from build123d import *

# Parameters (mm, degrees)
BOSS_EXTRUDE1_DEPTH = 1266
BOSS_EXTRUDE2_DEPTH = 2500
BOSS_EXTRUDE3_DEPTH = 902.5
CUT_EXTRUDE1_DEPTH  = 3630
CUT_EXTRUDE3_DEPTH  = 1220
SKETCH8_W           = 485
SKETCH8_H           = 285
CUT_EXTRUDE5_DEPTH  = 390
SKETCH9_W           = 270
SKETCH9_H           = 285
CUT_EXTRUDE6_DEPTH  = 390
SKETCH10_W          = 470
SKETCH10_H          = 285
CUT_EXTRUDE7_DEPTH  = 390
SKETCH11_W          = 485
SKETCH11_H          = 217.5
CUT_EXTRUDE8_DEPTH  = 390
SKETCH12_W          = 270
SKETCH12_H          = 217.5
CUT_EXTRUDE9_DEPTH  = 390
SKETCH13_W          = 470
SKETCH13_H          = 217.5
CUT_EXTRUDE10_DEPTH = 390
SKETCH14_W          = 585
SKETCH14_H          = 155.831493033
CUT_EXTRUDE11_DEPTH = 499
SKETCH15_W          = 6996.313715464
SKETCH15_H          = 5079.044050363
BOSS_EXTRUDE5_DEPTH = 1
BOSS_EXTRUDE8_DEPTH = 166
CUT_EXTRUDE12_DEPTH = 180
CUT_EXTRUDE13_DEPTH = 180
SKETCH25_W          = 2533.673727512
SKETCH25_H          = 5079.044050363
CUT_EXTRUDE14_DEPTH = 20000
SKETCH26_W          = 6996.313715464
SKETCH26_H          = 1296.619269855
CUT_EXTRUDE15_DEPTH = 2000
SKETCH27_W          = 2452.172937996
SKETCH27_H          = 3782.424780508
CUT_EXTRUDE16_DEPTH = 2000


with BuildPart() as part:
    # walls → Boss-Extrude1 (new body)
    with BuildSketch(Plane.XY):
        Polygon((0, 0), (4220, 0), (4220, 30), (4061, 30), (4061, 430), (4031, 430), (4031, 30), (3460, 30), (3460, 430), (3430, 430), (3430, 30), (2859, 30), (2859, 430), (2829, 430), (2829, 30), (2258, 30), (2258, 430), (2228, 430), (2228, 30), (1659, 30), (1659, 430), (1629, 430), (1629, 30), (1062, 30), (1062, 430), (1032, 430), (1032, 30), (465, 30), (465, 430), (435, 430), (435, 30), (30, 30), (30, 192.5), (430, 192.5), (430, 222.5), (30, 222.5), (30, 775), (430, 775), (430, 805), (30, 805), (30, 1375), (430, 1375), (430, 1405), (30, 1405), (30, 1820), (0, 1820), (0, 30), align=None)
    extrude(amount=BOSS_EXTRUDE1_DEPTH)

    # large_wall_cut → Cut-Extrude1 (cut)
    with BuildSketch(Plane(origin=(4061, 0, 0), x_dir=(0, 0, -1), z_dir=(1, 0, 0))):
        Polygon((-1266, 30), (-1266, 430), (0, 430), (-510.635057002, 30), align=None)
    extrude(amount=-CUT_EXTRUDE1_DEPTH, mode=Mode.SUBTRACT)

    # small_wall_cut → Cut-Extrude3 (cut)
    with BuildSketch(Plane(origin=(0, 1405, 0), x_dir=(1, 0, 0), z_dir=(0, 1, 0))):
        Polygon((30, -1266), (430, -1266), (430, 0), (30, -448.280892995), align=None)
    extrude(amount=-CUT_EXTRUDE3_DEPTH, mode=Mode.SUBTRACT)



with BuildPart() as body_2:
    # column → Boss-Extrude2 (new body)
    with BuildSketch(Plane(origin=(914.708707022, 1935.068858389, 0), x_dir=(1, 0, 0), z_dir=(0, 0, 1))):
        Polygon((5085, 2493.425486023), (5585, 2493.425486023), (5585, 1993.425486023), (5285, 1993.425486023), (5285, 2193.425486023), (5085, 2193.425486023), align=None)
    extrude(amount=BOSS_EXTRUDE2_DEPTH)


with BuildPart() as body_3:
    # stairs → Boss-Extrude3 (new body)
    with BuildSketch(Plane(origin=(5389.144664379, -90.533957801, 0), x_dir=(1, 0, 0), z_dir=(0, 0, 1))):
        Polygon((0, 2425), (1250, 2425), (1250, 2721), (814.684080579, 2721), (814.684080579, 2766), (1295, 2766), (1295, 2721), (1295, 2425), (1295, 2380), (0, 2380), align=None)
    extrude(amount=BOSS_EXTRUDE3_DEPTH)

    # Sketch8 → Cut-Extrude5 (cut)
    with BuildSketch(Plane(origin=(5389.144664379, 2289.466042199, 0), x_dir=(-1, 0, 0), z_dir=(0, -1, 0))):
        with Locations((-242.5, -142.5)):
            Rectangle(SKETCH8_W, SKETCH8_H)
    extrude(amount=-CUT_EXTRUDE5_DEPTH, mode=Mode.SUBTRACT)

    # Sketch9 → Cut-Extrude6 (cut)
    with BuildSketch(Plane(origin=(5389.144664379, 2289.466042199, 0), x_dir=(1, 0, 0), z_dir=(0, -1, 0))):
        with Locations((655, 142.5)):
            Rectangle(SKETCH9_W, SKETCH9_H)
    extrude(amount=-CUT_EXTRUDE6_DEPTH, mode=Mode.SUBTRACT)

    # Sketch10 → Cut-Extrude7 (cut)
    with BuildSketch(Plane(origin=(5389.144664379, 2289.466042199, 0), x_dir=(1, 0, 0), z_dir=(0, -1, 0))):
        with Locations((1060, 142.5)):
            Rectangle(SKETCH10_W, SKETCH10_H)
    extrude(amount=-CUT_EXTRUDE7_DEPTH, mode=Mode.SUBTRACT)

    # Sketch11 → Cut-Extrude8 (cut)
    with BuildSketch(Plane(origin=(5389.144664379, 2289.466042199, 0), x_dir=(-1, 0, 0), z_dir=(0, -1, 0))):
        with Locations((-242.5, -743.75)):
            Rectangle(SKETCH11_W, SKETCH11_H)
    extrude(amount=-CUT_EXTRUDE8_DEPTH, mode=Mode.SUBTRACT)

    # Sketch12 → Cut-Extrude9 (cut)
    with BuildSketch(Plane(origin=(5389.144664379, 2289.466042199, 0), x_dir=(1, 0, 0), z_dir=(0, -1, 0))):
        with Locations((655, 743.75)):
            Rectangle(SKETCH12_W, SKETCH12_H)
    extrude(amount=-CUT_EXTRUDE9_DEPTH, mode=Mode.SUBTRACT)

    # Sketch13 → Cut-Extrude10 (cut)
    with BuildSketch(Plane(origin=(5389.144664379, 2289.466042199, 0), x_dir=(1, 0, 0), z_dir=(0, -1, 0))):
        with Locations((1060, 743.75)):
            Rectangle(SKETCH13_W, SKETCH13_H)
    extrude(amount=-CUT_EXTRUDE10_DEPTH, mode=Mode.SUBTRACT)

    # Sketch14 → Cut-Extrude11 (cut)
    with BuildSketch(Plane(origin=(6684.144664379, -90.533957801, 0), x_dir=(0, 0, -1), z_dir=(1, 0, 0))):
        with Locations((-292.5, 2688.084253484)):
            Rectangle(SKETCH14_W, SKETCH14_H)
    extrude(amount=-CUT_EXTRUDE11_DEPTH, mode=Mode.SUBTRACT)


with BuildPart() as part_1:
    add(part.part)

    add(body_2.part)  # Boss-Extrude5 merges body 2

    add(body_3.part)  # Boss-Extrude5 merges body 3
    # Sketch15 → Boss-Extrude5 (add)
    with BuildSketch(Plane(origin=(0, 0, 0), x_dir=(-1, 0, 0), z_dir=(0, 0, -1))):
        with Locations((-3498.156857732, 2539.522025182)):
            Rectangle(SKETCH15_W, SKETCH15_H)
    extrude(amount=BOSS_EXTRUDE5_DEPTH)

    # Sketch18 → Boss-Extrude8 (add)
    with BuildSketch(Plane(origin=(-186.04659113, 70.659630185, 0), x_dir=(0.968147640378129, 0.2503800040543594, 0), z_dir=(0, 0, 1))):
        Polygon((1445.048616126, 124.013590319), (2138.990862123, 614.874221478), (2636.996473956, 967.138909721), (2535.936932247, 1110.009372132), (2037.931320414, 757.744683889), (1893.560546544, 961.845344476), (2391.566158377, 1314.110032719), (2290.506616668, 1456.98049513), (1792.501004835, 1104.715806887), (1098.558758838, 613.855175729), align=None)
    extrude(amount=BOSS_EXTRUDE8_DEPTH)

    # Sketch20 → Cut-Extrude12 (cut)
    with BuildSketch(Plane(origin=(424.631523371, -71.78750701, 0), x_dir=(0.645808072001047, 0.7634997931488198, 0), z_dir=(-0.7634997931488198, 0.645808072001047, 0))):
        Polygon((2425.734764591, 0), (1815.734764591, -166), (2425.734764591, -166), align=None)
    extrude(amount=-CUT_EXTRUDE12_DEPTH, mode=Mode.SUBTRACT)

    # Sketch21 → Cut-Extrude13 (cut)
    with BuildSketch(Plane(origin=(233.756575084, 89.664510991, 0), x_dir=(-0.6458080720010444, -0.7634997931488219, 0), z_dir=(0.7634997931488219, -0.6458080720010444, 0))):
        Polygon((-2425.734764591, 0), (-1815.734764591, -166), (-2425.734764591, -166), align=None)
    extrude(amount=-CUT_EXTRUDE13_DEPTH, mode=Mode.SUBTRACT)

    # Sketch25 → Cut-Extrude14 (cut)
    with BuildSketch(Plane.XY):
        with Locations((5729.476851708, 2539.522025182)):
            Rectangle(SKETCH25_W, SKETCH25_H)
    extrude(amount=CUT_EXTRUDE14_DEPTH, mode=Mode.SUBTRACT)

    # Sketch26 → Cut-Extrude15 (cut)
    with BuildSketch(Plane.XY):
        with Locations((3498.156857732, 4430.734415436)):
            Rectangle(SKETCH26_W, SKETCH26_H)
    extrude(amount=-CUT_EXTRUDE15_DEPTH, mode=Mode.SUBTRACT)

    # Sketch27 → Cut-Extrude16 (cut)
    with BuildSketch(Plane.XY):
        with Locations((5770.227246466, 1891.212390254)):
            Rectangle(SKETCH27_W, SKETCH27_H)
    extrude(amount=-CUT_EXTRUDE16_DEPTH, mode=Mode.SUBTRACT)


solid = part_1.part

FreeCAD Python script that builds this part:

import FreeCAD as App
import Part
import Sketcher
from FreeCAD import Vector

doc = App.newDocument("Part")
params = doc.addObject("Spreadsheet::Sheet", "Params")
for row, (alias, value) in enumerate([
    ("sketch1_width", "4220 mm"),
    ("sketch1_width2", "159 mm"),
    ("sketch1_width3", "30 mm"),
    ("sketch1_width4", "571 mm"),
    ("sketch1_width5", "569 mm"),
    ("pad1_length", "1266 mm"),
    ("sketch2_width", "400 mm"),
    ("sketch2_height", "1266 mm"),
    ("pocket1_length", "3630 mm"),
    ("sketch3_width", "400 mm"),
    ("sketch3_height", "1266 mm"),
    ("pocket2_length", "1220 mm"),
    ("sketch4_width", "500 mm"),
    ("sketch4_width2", "200 mm"),
    ("pad2_length", "2500 mm"),
    ("sketch5_width", "1250 mm"),
    ("sketch5_width2", "1295 mm"),
    ("sketch5_height", "45 mm"),
    ("sketch5_height2", "386 mm"),
    ("pad3_length", "902.5 mm"),
    ("sketch6_width", "485 mm"),
    ("sketch6_height", "285 mm"),
    ("pocket3_length", "390 mm"),
    ("sketch7_width", "270 mm"),
    ("sketch7_height", "285 mm"),
    ("pocket4_length", "390 mm"),
    ("sketch8_width", "470 mm"),
    ("sketch8_height", "285 mm"),
    ("pocket5_length", "390 mm"),
    ("sketch9_width", "485 mm"),
    ("sketch9_height", "217.5 mm"),
    ("pocket6_length", "390 mm"),
    ("sketch10_width", "270 mm"),
    ("sketch10_height", "217.5 mm"),
    ("pocket7_length", "390 mm"),
    ("sketch11_width", "470 mm"),
    ("sketch11_height", "217.5 mm"),
    ("pocket8_length", "390 mm"),
    ("sketch12_height", "585 mm"),
    ("pocket9_length", "499 mm"),
    ("pad4_length", "1 mm"),
    ("sketch14_length", "1459.999999 mm"),
    ("sketch14_length2", "175 mm"),
    ("sketch14_length3", "610 mm"),
    ("sketch14_length4", "250 mm"),
    ("pad5_length", "166 mm"),
    ("sketch15_width", "610 mm"),
    ("sketch15_height", "166 mm"),
    ("pocket10_length", "180 mm"),
    ("sketch16_width", "610 mm"),
    ("sketch16_height", "166 mm"),
    ("pocket11_length", "180 mm"),
    ("pocket12_length", "20000 mm"),
    ("pocket13_length", "2000 mm"),
    ("pocket14_length", "2000 mm"),
], start=1):
    params.set(f"A{row}", alias)
    params.set(f"B{row}", "=" + value)
    params.setAlias(f"B{row}", alias)

body = doc.addObject("PartDesign::Body", "Body")

sketch1 = body.newObject("Sketcher::SketchObject", "Sketch")
sketch1.AttachmentSupport = (doc.getObject("XY_Plane"), [""])
sketch1.MapMode = "FlatFace"
sketch1.addGeometry([
    Part.LineSegment(Vector(0, 0, 0), Vector(4220, 0, 0)),
    Part.LineSegment(Vector(4220, 0, 0), Vector(4220, 30, 0)),
    Part.LineSegment(Vector(4220, 30, 0), Vector(4061, 30, 0)),
    Part.LineSegment(Vector(4061, 30, 0), Vector(4061, 430, 0)),
    Part.LineSegment(Vector(4061, 430, 0), Vector(4031, 430, 0)),
    Part.LineSegment(Vector(4031, 430, 0), Vector(4031, 30, 0)),
    Part.LineSegment(Vector(4031, 30, 0), Vector(3460, 30, 0)),
    Part.LineSegment(Vector(3460, 30, 0), Vector(3460, 430, 0)),
    Part.LineSegment(Vector(3460, 430, 0), Vector(3430, 430, 0)),
    Part.LineSegment(Vector(3430, 430, 0), Vector(3430, 30, 0)),
    Part.LineSegment(Vector(3430, 30, 0), Vector(2859, 30, 0)),
    Part.LineSegment(Vector(2859, 30, 0), Vector(2859, 430, 0)),
    Part.LineSegment(Vector(2859, 430, 0), Vector(2829, 430, 0)),
    Part.LineSegment(Vector(2829, 430, 0), Vector(2829, 30, 0)),
    Part.LineSegment(Vector(2829, 30, 0), Vector(2258, 30, 0)),
    Part.LineSegment(Vector(2258, 30, 0), Vector(2258, 430, 0)),
    Part.LineSegment(Vector(2258, 430, 0), Vector(2228, 430, 0)),
    Part.LineSegment(Vector(2228, 430, 0), Vector(2228, 30, 0)),
    Part.LineSegment(Vector(2228, 30, 0), Vector(1659, 30, 0)),
    Part.LineSegment(Vector(1659, 30, 0), Vector(1659, 430, 0)),
    Part.LineSegment(Vector(1659, 430, 0), Vector(1629, 430, 0)),
    Part.LineSegment(Vector(1629, 430, 0), Vector(1629, 30, 0)),
    Part.LineSegment(Vector(1629, 30, 0), Vector(1062, 30, 0)),
    Part.LineSegment(Vector(1062, 30, 0), Vector(1062, 430, 0)),
    Part.LineSegment(Vector(1062, 430, 0), Vector(1032, 430, 0)),
    Part.LineSegment(Vector(1032, 430, 0), Vector(1032, 30, 0)),
    Part.LineSegment(Vector(1032, 30, 0), Vector(465, 30, 0)),
    Part.LineSegment(Vector(465, 30, 0), Vector(465, 430, 0)),
    Part.LineSegment(Vector(465, 430, 0), Vector(435, 430, 0)),
    Part.LineSegment(Vector(435, 430, 0), Vector(435, 30, 0)),
    Part.LineSegment(Vector(435, 30, 0), Vector(30, 30, 0)),
    Part.LineSegment(Vector(30, 30, 0), Vector(30, 192.5, 0)),
    Part.LineSegment(Vector(30, 192.5, 0), Vector(430, 192.5, 0)),
    Part.LineSegment(Vector(430, 192.5, 0), Vector(430, 222.5, 0)),
    Part.LineSegment(Vector(430, 222.5, 0), Vector(30, 222.5, 0)),
    Part.LineSegment(Vector(30, 222.5, 0), Vector(30, 775, 0)),
    Part.LineSegment(Vector(30, 775, 0), Vector(430, 775, 0)),
    Part.LineSegment(Vector(430, 775, 0), Vector(430, 805, 0)),
    Part.LineSegment(Vector(430, 805, 0), Vector(30, 805, 0)),
    Part.LineSegment(Vector(30, 805, 0), Vector(30, 1375, 0)),
    Part.LineSegment(Vector(30, 1375, 0), Vector(430, 1375, 0)),
    Part.LineSegment(Vector(430, 1375, 0), Vector(430, 1405, 0)),
    Part.LineSegment(Vector(430, 1405, 0), Vector(30, 1405, 0)),
    Part.LineSegment(Vector(30, 1405, 0), Vector(30, 1820, 0)),
    Part.LineSegment(Vector(30, 1820, 0), Vector(0, 1820, 0)),
    Part.LineSegment(Vector(0, 1820, 0), Vector(0, 0, 0)),
], False)
sketch1.addConstraint([
    Sketcher.Constraint("Coincident", 0, 2, 1, 1),
    Sketcher.Constraint("Coincident", 1, 2, 2, 1),
    Sketcher.Constraint("Coincident", 2, 2, 3, 1),
    Sketcher.Constraint("Coincident", 3, 2, 4, 1),
    Sketcher.Constraint("Coincident", 4, 2, 5, 1),
    Sketcher.Constraint("Coincident", 5, 2, 6, 1),
    Sketcher.Constraint("Coincident", 6, 2, 7, 1),
    Sketcher.Constraint("Coincident", 7, 2, 8, 1),
    Sketcher.Constraint("Coincident", 8, 2, 9, 1),
    Sketcher.Constraint("Coincident", 9, 2, 10, 1),
    Sketcher.Constraint("Coincident", 10, 2, 11, 1),
    Sketcher.Constraint("Coincident", 11, 2, 12, 1),
    Sketcher.Constraint("Coincident", 12, 2, 13, 1),
    Sketcher.Constraint("Coincident", 13, 2, 14, 1),
    Sketcher.Constraint("Coincident", 14, 2, 15, 1),
    Sketcher.Constraint("Coincident", 15, 2, 16, 1),
    Sketcher.Constraint("Coincident", 16, 2, 17, 1),
    Sketcher.Constraint("Coincident", 17, 2, 18, 1),
    Sketcher.Constraint("Coincident", 18, 2, 19, 1),
    Sketcher.Constraint("Coincident", 19, 2, 20, 1),
    Sketcher.Constraint("Coincident", 20, 2, 21, 1),
    Sketcher.Constraint("Coincident", 21, 2, 22, 1),
    Sketcher.Constraint("Coincident", 22, 2, 23, 1),
    Sketcher.Constraint("Coincident", 23, 2, 24, 1),
    Sketcher.Constraint("Coincident", 24, 2, 25, 1),
    Sketcher.Constraint("Coincident", 25, 2, 26, 1),
    Sketcher.Constraint("Coincident", 26, 2, 27, 1),
    Sketcher.Constraint("Coincident", 27, 2, 28, 1),
    Sketcher.Constraint("Coincident", 28, 2, 29, 1),
    Sketcher.Constraint("Coincident", 29, 2, 30, 1),
    Sketcher.Constraint("Coincident", 30, 2, 31, 1),
    Sketcher.Constraint("Coincident", 31, 2, 32, 1),
    Sketcher.Constraint("Coincident", 32, 2, 33, 1),
    Sketcher.Constraint("Coincident", 33, 2, 34, 1),
    Sketcher.Constraint("Coincident", 34, 2, 35, 1),
    Sketcher.Constraint("Coincident", 35, 2, 36, 1),
    Sketcher.Constraint("Coincident", 36, 2, 37, 1),
    Sketcher.Constraint("Coincident", 37, 2, 38, 1),
    Sketcher.Constraint("Coincident", 38, 2, 39, 1),
    Sketcher.Constraint("Coincident", 39, 2, 40, 1),
    Sketcher.Constraint("Coincident", 40, 2, 41, 1),
    Sketcher.Constraint("Coincident", 41, 2, 42, 1),
    Sketcher.Constraint("Coincident", 42, 2, 43, 1),
    Sketcher.Constraint("Coincident", 43, 2, 44, 1),
    Sketcher.Constraint("Coincident", 44, 2, 45, 1),
    Sketcher.Constraint("Coincident", 45, 2, 0, 1),
    Sketcher.Constraint("Horizontal", 0),
    Sketcher.Constraint("Vertical", 1),
    Sketcher.Constraint("Horizontal", 2),
    Sketcher.Constraint("Vertical", 3),
    Sketcher.Constraint("Horizontal", 4),
    Sketcher.Constraint("Vertical", 5),
    Sketcher.Constraint("Horizontal", 6),
    Sketcher.Constraint("Vertical", 7),
    Sketcher.Constraint("Horizontal", 8),
    Sketcher.Constraint("Vertical", 9),
    Sketcher.Constraint("Horizontal", 10),
    Sketcher.Constraint("Vertical", 11),
    Sketcher.Constraint("Horizontal", 12),
    Sketcher.Constraint("Vertical", 13),
    Sketcher.Constraint("Horizontal", 14),
    Sketcher.Constraint("Vertical", 15),
    Sketcher.Constraint("Horizontal", 16),
    Sketcher.Constraint("Vertical", 17),
    Sketcher.Constraint("Horizontal", 18),
    Sketcher.Constraint("Vertical", 19),
    Sketcher.Constraint("Horizontal", 20),
    Sketcher.Constraint("Vertical", 21),
    Sketcher.Constraint("Horizontal", 22),
    Sketcher.Constraint("Vertical", 23),
    Sketcher.Constraint("Horizontal", 24),
    Sketcher.Constraint("Vertical", 25),
    Sketcher.Constraint("Horizontal", 26),
    Sketcher.Constraint("Vertical", 27),
    Sketcher.Constraint("Horizontal", 28),
    Sketcher.Constraint("Vertical", 29),
    Sketcher.Constraint("Horizontal", 30),
    Sketcher.Constraint("Vertical", 31),
    Sketcher.Constraint("Horizontal", 32),
    Sketcher.Constraint("Vertical", 33),
    Sketcher.Constraint("Horizontal", 34),
    Sketcher.Constraint("Vertical", 35),
    Sketcher.Constraint("Horizontal", 36),
    Sketcher.Constraint("Vertical", 37),
    Sketcher.Constraint("Horizontal", 38),
    Sketcher.Constraint("Vertical", 39),
    Sketcher.Constraint("Horizontal", 40),
    Sketcher.Constraint("Vertical", 41),
    Sketcher.Constraint("Horizontal", 42),
    Sketcher.Constraint("Vertical", 43),
    Sketcher.Constraint("Horizontal", 44),
    Sketcher.Constraint("Vertical", 45),
    Sketcher.Constraint("Coincident", 45, 2, -1, 1),
    Sketcher.Constraint("Horizontal", 2, 2, 5, 2),
    Sketcher.Constraint("Horizontal", 4, 2, 7, 2),
    Sketcher.Constraint("Horizontal", 6, 2, 9, 2),
    Sketcher.Constraint("Horizontal", 8, 2, 11, 2),
    Sketcher.Constraint("Horizontal", 10, 2, 13, 2),
    Sketcher.Constraint("Horizontal", 12, 2, 15, 2),
    Sketcher.Constraint("Horizontal", 14, 2, 17, 2),
    Sketcher.Constraint("Horizontal", 16, 2, 19, 2),
    Sketcher.Constraint("Horizontal", 18, 2, 21, 2),
    Sketcher.Constraint("Horizontal", 20, 2, 23, 2),
    Sketcher.Constraint("Horizontal", 22, 2, 25, 2),
    Sketcher.Constraint("Horizontal", 24, 2, 27, 2),
    Sketcher.Constraint("Horizontal", 26, 2, 29, 2),
    Sketcher.Constraint("Vertical", 31, 2, 34, 2),
    Sketcher.Constraint("Vertical", 33, 2, 36, 2),
    Sketcher.Constraint("Vertical", 35, 2, 38, 2),
    Sketcher.Constraint("Vertical", 37, 2, 40, 2),
    Sketcher.Constraint("Vertical", 39, 2, 42, 2),
    Sketcher.Constraint("Equal", 4, 8),
    Sketcher.Constraint("Equal", 6, 10),
    Sketcher.Constraint("Equal", 8, 12),
    Sketcher.Constraint("Equal", 10, 14),
    Sketcher.Constraint("Equal", 12, 16),
    Sketcher.Constraint("Equal", 16, 20),
    Sketcher.Constraint("Equal", 20, 24),
    Sketcher.Constraint("Equal", 22, 26),
    Sketcher.Constraint("Equal", 24, 28),
    Sketcher.Constraint("Equal", 28, 44),
    Sketcher.Constraint("Equal", 44, 1),
    Sketcher.Constraint("Equal", 42, 3),
    Sketcher.Constraint("Equal", 1, 33),
    Sketcher.Constraint("Equal", 33, 37),
    Sketcher.Constraint("Equal", 37, 41),
    Sketcher.Constraint("DistanceX", 0, 1, 0, 2, 4220.0),
    Sketcher.Constraint("DistanceX", 2, 2, 2, 1, 159.0),
    Sketcher.Constraint("DistanceX", 4, 2, 4, 1, 30.0),
    Sketcher.Constraint("DistanceX", 6, 2, 6, 1, 571.0),
    Sketcher.Constraint("DistanceX", 18, 2, 18, 1, 569.0),
    Sketcher.Constraint("DistanceX", 22, 2, 22, 1, 567.0),
    Sketcher.Constraint("DistanceX", 32, 1, 32, 2, 400.0),
    Sketcher.Constraint("DistanceY", 39, 1, 39, 2, 570.0),
    Sketcher.Constraint("DistanceY", 43, 1, 43, 2, 415.0),
    Sketcher.Constraint("DistanceY", 45, 2, 45, 1, 1820.0),
    Sketcher.Constraint("DistanceY", 31, 1, 31, 2, 162.5),
])
sketch1.setExpression("Constraints[126]", "Params.sketch1_width")
sketch1.setExpression("Constraints[127]", "Params.sketch1_width2")
sketch1.setExpression("Constraints[128]", "Params.sketch1_width3")
sketch1.setExpression("Constraints[129]", "Params.sketch1_width4")
sketch1.setExpression("Constraints[130]", "Params.sketch1_width5")
pad1 = body.newObject("PartDesign::Pad", "Pad")
pad1.Profile = sketch1
pad1.setExpression("Length", "Params.pad1_length")

sketch2 = body.newObject("Sketcher::SketchObject", "Sketch001")
sketch2.AttachmentSupport = (doc.getObject("YZ_Plane"), [""])
sketch2.MapMode = "FlatFace"
sketch2.AttachmentOffset = App.Placement(Vector(0, 0, 4061), App.Rotation())
sketch2.addGeometry([
    Part.LineSegment(Vector(430, 1266, 0), Vector(30, 1266, 0)),
    Part.LineSegment(Vector(30, 1266, 0), Vector(30, 510.635057, 0)),
    Part.LineSegment(Vector(30, 510.635057, 0), Vector(430, 0, 0)),
    Part.LineSegment(Vector(430, 0, 0), Vector(430, 1266, 0)),
], False)
sketch2.addConstraint([
    Sketcher.Constraint("Coincident", 0, 2, 1, 1),
    Sketcher.Constraint("Coincident", 1, 2, 2, 1),
    Sketcher.Constraint("Coincident", 2, 2, 3, 1),
    Sketcher.Constraint("Coincident", 3, 2, 0, 1),
    Sketcher.Constraint("Horizontal", 0),
    Sketcher.Constraint("Vertical", 1),
    Sketcher.Constraint("Vertical", 3),
    Sketcher.Constraint("PointOnObject", 2, 2, -1),
    Sketcher.Constraint("DistanceX", 0, 2, 0, 1, 400.0),
    Sketcher.Constraint("DistanceY", 3, 1, 3, 2, 1266.0),
    Sketcher.Constraint("DistanceX", -1, 1, 0, 2, 30.0),
    Sketcher.Constraint("DistanceY", 1, 2, 1, 1, 755.364943),
])
sketch2.setExpression("Constraints[8]", "Params.sketch2_width")
sketch2.setExpression("Constraints[9]", "Params.sketch2_height")
pocket1 = body.newObject("PartDesign::Pocket", "Pocket")
pocket1.Profile = sketch2
pocket1.setExpression("Length", "Params.pocket1_length")

sketch3 = body.newObject("Sketcher::SketchObject", "Sketch002")
sketch3.AttachmentSupport = (doc.getObject("XZ_Plane"), [""])
sketch3.MapMode = "FlatFace"
sketch3.AttachmentOffset = App.Placement(Vector(0, 0, -1405), App.Rotation())
sketch3.addGeometry([
    Part.LineSegment(Vector(30, 1266, 0), Vector(430, 1266, 0)),
    Part.LineSegment(Vector(430, 1266, 0), Vector(430, 0, 0)),
    Part.LineSegment(Vector(430, 0, 0), Vector(30, 448.280893, 0)),
    Part.LineSegment(Vector(30, 448.280893, 0), Vector(30, 1266, 0)),
], False)
sketch3.addConstraint([
    Sketcher.Constraint("Coincident", 0, 2, 1, 1),
    Sketcher.Constraint("Coincident", 1, 2, 2, 1),
    Sketcher.Constraint("Coincident", 2, 2, 3, 1),
    Sketcher.Constraint("Coincident", 3, 2, 0, 1),
    Sketcher.Constraint("Horizontal", 0),
    Sketcher.Constraint("Vertical", 1),
    Sketcher.Constraint("Vertical", 3),
    Sketcher.Constraint("PointOnObject", 1, 2, -1),
    Sketcher.Constraint("DistanceX", 0, 1, 0, 2, 400.0),
    Sketcher.Constraint("DistanceY", 1, 2, 1, 1, 1266.0),
    Sketcher.Constraint("DistanceX", -1, 1, 0, 2, 430.0),
    Sketcher.Constraint("DistanceY", 3, 1, 3, 2, 817.719107),
])
sketch3.setExpression("Constraints[8]", "Params.sketch3_width")
sketch3.setExpression("Constraints[9]", "Params.sketch3_height")
pocket2 = body.newObject("PartDesign::Pocket", "Pocket001")
pocket2.Profile = sketch3
pocket2.setExpression("Length", "Params.pocket2_length")
pocket2.Reversed = True
body2 = doc.addObject("PartDesign::Body", "Body001")

sketch4 = body2.newObject("Sketcher::SketchObject", "Sketch003")
sketch4.AttachmentSupport = (doc.getObject("XY_Plane001"), [""])
sketch4.MapMode = "FlatFace"
sketch4.addGeometry([
    Part.LineSegment(Vector(6499.708707, 4428.494344, 0), Vector(5999.708707, 4428.494344, 0)),
    Part.LineSegment(Vector(5999.708707, 4428.494344, 0), Vector(5999.708707, 4128.494344, 0)),
    Part.LineSegment(Vector(5999.708707, 4128.494344, 0), Vector(6199.708707, 4128.494344, 0)),
    Part.LineSegment(Vector(6199.708707, 4128.494344, 0), Vector(6199.708707, 3928.494344, 0)),
    Part.LineSegment(Vector(6199.708707, 3928.494344, 0), Vector(6499.708707, 3928.494344, 0)),
    Part.LineSegment(Vector(6499.708707, 3928.494344, 0), Vector(6499.708707, 4428.494344, 0)),
], False)
sketch4.addConstraint([
    Sketcher.Constraint("Coincident", 0, 2, 1, 1),
    Sketcher.Constraint("Coincident", 1, 2, 2, 1),
    Sketcher.Constraint("Coincident", 2, 2, 3, 1),
    Sketcher.Constraint("Coincident", 3, 2, 4, 1),
    Sketcher.Constraint("Coincident", 4, 2, 5, 1),
    Sketcher.Constraint("Coincident", 5, 2, 0, 1),
    Sketcher.Constraint("Horizontal", 0),
    Sketcher.Constraint("Vertical", 1),
    Sketcher.Constraint("Horizontal", 2),
    Sketcher.Constraint("Vertical", 3),
    Sketcher.Constraint("Horizontal", 4),
    Sketcher.Constraint("Vertical", 5),
    Sketcher.Constraint("Equal", 4, 1),
    Sketcher.Constraint("Equal", 2, 3),
    Sketcher.Constraint("DistanceX", 0, 2, 0, 1, 500.0),
    Sketcher.Constraint("DistanceX", 2, 1, 2, 2, 200.0),
    Sketcher.Constraint("DistanceX", -1, 1, 0, 2, 5999.708707),
    Sketcher.Constraint("DistanceY", -1, 1, 0, 2, 4428.494344),
])
sketch4.setExpression("Constraints[14]", "Params.sketch4_width")
sketch4.setExpression("Constraints[15]", "Params.sketch4_width2")
pad2 = body2.newObject("PartDesign::Pad", "Pad001")
pad2.Profile = sketch4
pad2.setExpression("Length", "Params.pad2_length")
body3 = doc.addObject("PartDesign::Body", "Body002")

sketch5 = body3.newObject("Sketcher::SketchObject", "Sketch004")
sketch5.AttachmentSupport = (doc.getObject("XY_Plane002"), [""])
sketch5.MapMode = "FlatFace"
sketch5.addGeometry([
    Part.LineSegment(Vector(6639.144664, 2334.466042, 0), Vector(5389.144664, 2334.466042, 0)),
    Part.LineSegment(Vector(5389.144664, 2334.466042, 0), Vector(5389.144664, 2289.466042, 0)),
    Part.LineSegment(Vector(5389.144664, 2289.466042, 0), Vector(6684.144664, 2289.466042, 0)),
    Part.LineSegment(Vector(6684.144664, 2289.466042, 0), Vector(6684.144664, 2675.466042, 0)),
    Part.LineSegment(Vector(6684.144664, 2675.466042, 0), Vector(6203.828745, 2675.466042, 0)),
    Part.LineSegment(Vector(6203.828745, 2675.466042, 0), Vector(6203.828745, 2630.466042, 0)),
    Part.LineSegment(Vector(6203.828745, 2630.466042, 0), Vector(6639.144664, 2630.466042, 0)),
    Part.LineSegment(Vector(6639.144664, 2630.466042, 0), Vector(6639.144664, 2334.466042, 0)),
], False)
sketch5.addConstraint([
    Sketcher.Constraint("Coincident", 0, 2, 1, 1),
    Sketcher.Constraint("Coincident", 1, 2, 2, 1),
    Sketcher.Constraint("Coincident", 2, 2, 3, 1),
    Sketcher.Constraint("Coincident", 3, 2, 4, 1),
    Sketcher.Constraint("Coincident", 4, 2, 5, 1),
    Sketcher.Constraint("Coincident", 5, 2, 6, 1),
    Sketcher.Constraint("Coincident", 6, 2, 7, 1),
    Sketcher.Constraint("Coincident", 7, 2, 0, 1),
    Sketcher.Constraint("Horizontal", 0),
    Sketcher.Constraint("Vertical", 1),
    Sketcher.Constraint("Horizontal", 2),
    Sketcher.Constraint("Vertical", 3),
    Sketcher.Constraint("Horizontal", 4),
    Sketcher.Constraint("Vertical", 5),
    Sketcher.Constraint("Horizontal", 6),
    Sketcher.Constraint("Vertical", 7),
    Sketcher.Constraint("Equal", 1, 5),
    Sketcher.Constraint("DistanceX", 0, 2, 0, 1, 1250.0),
    Sketcher.Constraint("DistanceX", 2, 1, 2, 2, 1295.0),
    Sketcher.Constraint("DistanceY", 1, 2, 1, 1, 45.0),
    Sketcher.Constraint("DistanceY", 3, 1, 3, 2, 386.0),
    Sketcher.Constraint("DistanceX", 4, 2, 4, 1, 480.315919),
    Sketcher.Constraint("DistanceX", -1, 1, 0, 2, 5389.144664),
    Sketcher.Constraint("DistanceY", -1, 1, 0, 2, 2334.466042),
])
sketch5.setExpression("Constraints[17]", "Params.sketch5_width")
sketch5.setExpression("Constraints[18]", "Params.sketch5_width2")
sketch5.setExpression("Constraints[19]", "Params.sketch5_height")
sketch5.setExpression("Constraints[20]", "Params.sketch5_height2")
pad3 = body3.newObject("PartDesign::Pad", "Pad002")
pad3.Profile = sketch5
pad3.setExpression("Length", "Params.pad3_length")

sketch6 = body3.newObject("Sketcher::SketchObject", "Sketch005")
sketch6.AttachmentSupport = (doc.getObject("XZ_Plane002"), [""])
sketch6.MapMode = "FlatFace"
sketch6.AttachmentOffset = App.Placement(Vector(0, 0, -2289.466042), App.Rotation())
sketch6.addGeometry([
    Part.LineSegment(Vector(5874.144664, 0, 0), Vector(5874.144664, 285, 0)),
    Part.LineSegment(Vector(5874.144664, 285, 0), Vector(5389.144664, 285, 0)),
    Part.LineSegment(Vector(5389.144664, 285, 0), Vector(5389.144664, 0, 0)),
    Part.LineSegment(Vector(5389.144664, 0, 0), Vector(5874.144664, 0, 0)),
], False)
sketch6.addConstraint([
    Sketcher.Constraint("Coincident", 0, 2, 1, 1),
    Sketcher.Constraint("Coincident", 1, 2, 2, 1),
    Sketcher.Constraint("Coincident", 2, 2, 3, 1),
    Sketcher.Constraint("Coincident", 3, 2, 0, 1),
    Sketcher.Constraint("Vertical", 0),
    Sketcher.Constraint("Horizontal", 1),
    Sketcher.Constraint("Vertical", 2),
    Sketcher.Constraint("Horizontal", 3),
    Sketcher.Constraint("PointOnObject", 2, 2, -1),
    Sketcher.Constraint("DistanceX", 1, 2, 1, 1, 485.0),
    Sketcher.Constraint("DistanceY", 0, 1, 0, 2, 285.0),
    Sketcher.Constraint("DistanceX", -1, 1, 0, 2, 5874.144664),
])
sketch6.setExpression("Constraints[9]", "Params.sketch6_width")
sketch6.setExpression("Constraints[10]", "Params.sketch6_height")
pocket3 = body3.newObject("PartDesign::Pocket", "Pocket002")
pocket3.Profile = sketch6
pocket3.setExpression("Length", "Params.pocket3_length")

sketch7 = body3.newObject("Sketcher::SketchObject", "Sketch006")
sketch7.AttachmentSupport = (doc.getObject("XZ_Plane002"), [""])
sketch7.MapMode = "FlatFace"
sketch7.AttachmentOffset = App.Placement(Vector(0, 0, -2289.466042), App.Rotation())
sketch7.addGeometry([
    Part.LineSegment(Vector(5909.144664, 285, 0), Vector(5909.144664, 0, 0)),
    Part.LineSegment(Vector(5909.144664, 0, 0), Vector(6179.144664, 0, 0)),
    Part.LineSegment(Vector(6179.144664, 0, 0), Vector(6179.144664, 285, 0)),
    Part.LineSegment(Vector(6179.144664, 285, 0), Vector(5909.144664, 285, 0)),
], False)
sketch7.addConstraint([
    Sketcher.Constraint("Coincident", 0, 2, 1, 1),
    Sketcher.Constraint("Coincident", 1, 2, 2, 1),
    Sketcher.Constraint("Coincident", 2, 2, 3, 1),
    Sketcher.Constraint("Coincident", 3, 2, 0, 1),
    Sketcher.Constraint("Vertical", 0),
    Sketcher.Constraint("Horizontal", 1),
    Sketcher.Constraint("Vertical", 2),
    Sketcher.Constraint("Horizontal", 3),
    Sketcher.Constraint("PointOnObject", 0, 2, -1),
    Sketcher.Constraint("DistanceX", 1, 1, 1, 2, 270.0),
    Sketcher.Constraint("DistanceY", 0, 2, 0, 1, 285.0),
    Sketcher.Constraint("DistanceX", -1, 1, 0, 2, 5909.144664),
])
sketch7.setExpression("Constraints[9]", "Params.sketch7_width")
sketch7.setExpression("Constraints[10]", "Params.sketch7_height")
pocket4 = body3.newObject("PartDesign::Pocket", "Pocket003")
pocket4.Profile = sketch7
pocket4.setExpression("Length", "Params.pocket4_length")

sketch8 = body3.newObject("Sketcher::SketchObject", "Sketch007")
sketch8.AttachmentSupport = (doc.getObject("XZ_Plane002"), [""])
sketch8.MapMode = "FlatFace"
sketch8.AttachmentOffset = App.Placement(Vector(0, 0, -2289.466042), App.Rotation())
sketch8.addGeometry([
    Part.LineSegment(Vector(6214.144664, 285, 0), Vector(6214.144664, 0, 0)),
    Part.LineSegment(Vector(6214.144664, 0, 0), Vector(6684.144664, 0, 0)),
    Part.LineSegment(Vector(6684.144664, 0, 0), Vector(6684.144664, 285, 0)),
    Part.LineSegment(Vector(6684.144664, 285, 0), Vector(6214.144664, 285, 0)),
], False)
sketch8.addConstraint([
    Sketcher.Constraint("Coincident", 0, 2, 1, 1),
    Sketcher.Constraint("Coincident", 1, 2, 2, 1),
    Sketcher.Constraint("Coincident", 2, 2, 3, 1),
    Sketcher.Constraint("Coincident", 3, 2, 0, 1),
    Sketcher.Constraint("Vertical", 0),
    Sketcher.Constraint("Horizontal", 1),
    Sketcher.Constraint("Vertical", 2),
    Sketcher.Constraint("Horizontal", 3),
    Sketcher.Constraint("PointOnObject", 0, 2, -1),
    Sketcher.Constraint("DistanceX", 1, 1, 1, 2, 470.0),
    Sketcher.Constraint("DistanceY", 0, 2, 0, 1, 285.0),
    Sketcher.Constraint("DistanceX", -1, 1, 0, 2, 6214.144664),
])
sketch8.setExpression("Constraints[9]", "Params.sketch8_width")
sketch8.setExpression("Constraints[10]", "Params.sketch8_height")
pocket5 = body3.newObject("PartDesign::Pocket", "Pocket004")
pocket5.Profile = sketch8
pocket5.setExpression("Length", "Params.pocket5_length")

sketch9 = body3.newObject("Sketcher::SketchObject", "Sketch008")
sketch9.AttachmentSupport = (doc.getObject("XZ_Plane002"), [""])
sketch9.MapMode = "FlatFace"
sketch9.AttachmentOffset = App.Placement(Vector(0, 0, -2289.466042), App.Rotation())
sketch9.addGeometry([
    Part.LineSegment(Vector(5874.144664, 635, 0), Vector(5874.144664, 852.5, 0)),
    Part.LineSegment(Vector(5874.144664, 852.5, 0), Vector(5389.144664, 852.5, 0)),
    Part.LineSegment(Vector(5389.144664, 852.5, 0), Vector(5389.144664, 635, 0)),
    Part.LineSegment(Vector(5389.144664, 635, 0), Vector(5874.144664, 635, 0)),
], False)
sketch9.addConstraint([
    Sketcher.Constraint("Coincident", 0, 2, 1, 1),
    Sketcher.Constraint("Coincident", 1, 2, 2, 1),
    Sketcher.Constraint("Coincident", 2, 2, 3, 1),
    Sketcher.Constraint("Coincident", 3, 2, 0, 1),
    Sketcher.Constraint("Vertical", 0),
    Sketcher.Constraint("Horizontal", 1),
    Sketcher.Constraint("Vertical", 2),
    Sketcher.Constraint("Horizontal", 3),
    Sketcher.Constraint("DistanceX", 1, 2, 1, 1, 485.0),
    Sketcher.Constraint("DistanceY", 0, 1, 0, 2, 217.5),
    Sketcher.Constraint("DistanceY", -1, 1, 2, 2, 635.0),
    Sketcher.Constraint("DistanceX", -1, 1, 0, 2, 5874.144664),
])
sketch9.setExpression("Constraints[8]", "Params.sketch9_width")
sketch9.setExpression("Constraints[9]", "Params.sketch9_height")
pocket6 = body3.newObject("PartDesign::Pocket", "Pocket005")
pocket6.Profile = sketch9
pocket6.setExpression("Length", "Params.pocket6_length")

sketch10 = body3.newObject("Sketcher::SketchObject", "Sketch009")
sketch10.AttachmentSupport = (doc.getObject("XZ_Plane002"), [""])
sketch10.MapMode = "FlatFace"
sketch10.AttachmentOffset = App.Placement(Vector(0, 0, -2289.466042), App.Rotation())
sketch10.addGeometry([
    Part.LineSegment(Vector(5909.144664, 852.5, 0), Vector(5909.144664, 635, 0)),
    Part.LineSegment(Vector(5909.144664, 635, 0), Vector(6179.144664, 635, 0)),
    Part.LineSegment(Vector(6179.144664, 635, 0), Vector(6179.144664, 852.5, 0)),
    Part.LineSegment(Vector(6179.144664, 852.5, 0), Vector(5909.144664, 852.5, 0)),
], False)
sketch10.addConstraint([
    Sketcher.Constraint("Coincident", 0, 2, 1, 1),
    Sketcher.Constraint("Coincident", 1, 2, 2, 1),
    Sketcher.Constraint("Coincident", 2, 2, 3, 1),
    Sketcher.Constraint("Coincident", 3, 2, 0, 1),
    Sketcher.Constraint("Vertical", 0),
    Sketcher.Constraint("Horizontal", 1),
    Sketcher.Constraint("Vertical", 2),
    Sketcher.Constraint("Horizontal", 3),
    Sketcher.Constraint("DistanceX", 1, 1, 1, 2, 270.0),
    Sketcher.Constraint("DistanceY", 0, 2, 0, 1, 217.5),
    Sketcher.Constraint("DistanceY", -1, 1, 0, 2, 635.0),
    Sketcher.Constraint("DistanceX", -1, 1, 0, 2, 5909.144664),
])
sketch10.setExpression("Constraints[8]", "Params.sketch10_width")
sketch10.setExpression("Constraints[9]", "Params.sketch10_height")
pocket7 = body3.newObject("PartDesign::Pocket", "Pocket006")
pocket7.Profile = sketch10
pocket7.setExpression("Length", "Params.pocket7_length")

sketch11 = body3.newObject("Sketcher::SketchObject", "Sketch010")
sketch11.AttachmentSupport = (doc.getObject("XZ_Plane002"), [""])
sketch11.MapMode = "FlatFace"
sketch11.AttachmentOffset = App.Placement(Vector(0, 0, -2289.466042), App.Rotation())
sketch11.addGeometry([
    Part.LineSegment(Vector(6214.144664, 852.5, 0), Vector(6214.144664, 635, 0)),
    Part.LineSegment(Vector(6214.144664, 635, 0), Vector(6684.144664, 635, 0)),
    Part.LineSegment(Vector(6684.144664, 635, 0), Vector(6684.144664, 852.5, 0)),
    Part.LineSegment(Vector(6684.144664, 852.5, 0), Vector(6214.144664, 852.5, 0)),
], False)
sketch11.addConstraint([
    Sketcher.Constraint("Coincident", 0, 2, 1, 1),
    Sketcher.Constraint("Coincident", 1, 2, 2, 1),
    Sketcher.Constraint("Coincident", 2, 2, 3, 1),
    Sketcher.Constraint("Coincident", 3, 2, 0, 1),
    Sketcher.Constraint("Vertical", 0),
    Sketcher.Constraint("Horizontal", 1),
    Sketcher.Constraint("Vertical", 2),
    Sketcher.Constraint("Horizontal", 3),
    Sketcher.Constraint("DistanceX", 1, 1, 1, 2, 470.0),
    Sketcher.Constraint("DistanceY", 0, 2, 0, 1, 217.5),
    Sketcher.Constraint("DistanceY", -1, 1, 0, 2, 635.0),
    Sketcher.Constraint("DistanceX", -1, 1, 0, 2, 6214.144664),
])
sketch11.setExpression("Constraints[8]", "Params.sketch11_width")
sketch11.setExpression("Constraints[9]", "Params.sketch11_height")
pocket8 = body3.newObject("PartDesign::Pocket", "Pocket007")
pocket8.Profile = sketch11
pocket8.setExpression("Length", "Params.pocket8_length")

sketch12 = body3.newObject("Sketcher::SketchObject", "Sketch011")
sketch12.AttachmentSupport = (doc.getObject("YZ_Plane002"), [""])
sketch12.MapMode = "FlatFace"
sketch12.AttachmentOffset = App.Placement(Vector(0, 0, 6684.144664), App.Rotation())
sketch12.addGeometry([
    Part.LineSegment(Vector(2675.466042, 585, 0), Vector(2519.634549, 585, 0)),
    Part.LineSegment(Vector(2519.634549, 585, 0), Vector(2519.634549, 0, 0)),
    Part.LineSegment(Vector(2519.634549, 0, 0), Vector(2675.466042, 0, 0)),
    Part.LineSegment(Vector(2675.466042, 0, 0), Vector(2675.466042, 585, 0)),
], False)
sketch12.addConstraint([
    Sketcher.Constraint("Coincident", 0, 2, 1, 1),
    Sketcher.Constraint("Coincident", 1, 2, 2, 1),
    Sketcher.Constraint("Coincident", 2, 2, 3, 1),
    Sketcher.Constraint("Coincident", 3, 2, 0, 1),
    Sketcher.Constraint("Horizontal", 0),
    Sketcher.Constraint("Vertical", 1),
    Sketcher.Constraint("Horizontal", 2),
    Sketcher.Constraint("Vertical", 3),
    Sketcher.Constraint("PointOnObject", 1, 2, -1),
    Sketcher.Constraint("DistanceY", 1, 2, 1, 1, 585.0),
    Sketcher.Constraint("DistanceX", 0, 2, 0, 1, 155.831493),
    Sketcher.Constraint("DistanceX", -1, 1, 0, 2, 2519.634549),
])
sketch12.setExpression("Constraints[9]", "Params.sketch12_height")
pocket9 = body3.newObject("PartDesign::Pocket", "Pocket008")
pocket9.Profile = sketch12
pocket9.setExpression("Length", "Params.pocket9_length")
body.AllowCompound = True
doc.recompute()

boolean = body.newObject("PartDesign::Boolean", "Boolean")
boolean.Type = "Fuse"
boolean.addObjects([body2])
doc.recompute()

boolean2 = body.newObject("PartDesign::Boolean", "Boolean001")
boolean2.Type = "Fuse"
boolean2.addObjects([body3])

sketch13 = body.newObject("Sketcher::SketchObject", "Sketch012")
sketch13.AttachmentSupport = (doc.getObject("XY_Plane"), [""])
sketch13.MapMode = "FlatFace"
sketch13.addGeometry([
    Part.LineSegment(Vector(6996.313715, 5079.04405, 0), Vector(6996.313715, 0, 0)),
    Part.LineSegment(Vector(6996.313715, 0, 0), Vector(0, 0, 0)),
    Part.LineSegment(Vector(0, 0, 0), Vector(0, 5079.04405, 0)),
    Part.LineSegment(Vector(0, 5079.04405, 0), Vector(6996.313715, 5079.04405, 0)),
], False)
sketch13.addConstraint([
    Sketcher.Constraint("Coincident", 0, 2, 1, 1),
    Sketcher.Constraint("Coincident", 1, 2, 2, 1),
    Sketcher.Constraint("Coincident", 2, 2, 3, 1),
    Sketcher.Constraint("Coincident", 3, 2, 0, 1),
    Sketcher.Constraint("Vertical", 0),
    Sketcher.Constraint("Horizontal", 1),
    Sketcher.Constraint("Vertical", 2),
    Sketcher.Constraint("Horizontal", 3),
    Sketcher.Constraint("Coincident", 1, 2, -1, 1),
    Sketcher.Constraint("DistanceY", 0, 2, 0, 1, 5079.04405),
    Sketcher.Constraint("DistanceX", 1, 2, 1, 1, 6996.313715),
])
pad4 = body.newObject("PartDesign::Pad", "Pad003")
pad4.Profile = sketch13
pad4.setExpression("Length", "Params.pad4_length")
pad4.Reversed = True

sketch14 = body.newObject("Sketcher::SketchObject", "Sketch013")
sketch14.AttachmentSupport = (doc.getObject("XY_Plane"), [""])
sketch14.MapMode = "FlatFace"
sketch14.addGeometry([
    Part.LineSegment(Vector(1181.923293, 552.534373, 0), Vector(2124.803078, 1667.244071, 0)),
    Part.LineSegment(Vector(2124.803078, 1667.244071, 0), Vector(1991.190614, 1780.260483, 0)),
    Part.LineSegment(Vector(1991.190614, 1780.260483, 0), Vector(1597.24769, 1314.52561, 0)),
    Part.LineSegment(Vector(1597.24769, 1314.52561, 0), Vector(1406.372742, 1475.977628, 0)),
    Part.LineSegment(Vector(1406.372742, 1475.977628, 0), Vector(1800.315666, 1941.712501, 0)),
    Part.LineSegment(Vector(1800.315666, 1941.712501, 0), Vector(1666.703202, 2054.728914, 0)),
    Part.LineSegment(Vector(1666.703202, 2054.728914, 0), Vector(723.823417, 940.019216, 0)),
    Part.LineSegment(Vector(723.823417, 940.019216, 0), Vector(1181.923293, 552.534373, 0)),
], False)
sketch14.addConstraint([
    Sketcher.Constraint("Coincident", 0, 2, 1, 1),
    Sketcher.Constraint("Coincident", 1, 2, 2, 1),
    Sketcher.Constraint("Coincident", 2, 2, 3, 1),
    Sketcher.Constraint("Coincident", 3, 2, 4, 1),
    Sketcher.Constraint("Coincident", 4, 2, 5, 1),
    Sketcher.Constraint("Coincident", 5, 2, 6, 1),
    Sketcher.Constraint("Coincident", 6, 2, 7, 1),
    Sketcher.Constraint("Coincident", 7, 2, 0, 1),
    Sketcher.Constraint("Perpendicular", 0, 1),
    Sketcher.Constraint("Perpendicular", 1, 2),
    Sketcher.Constraint("Perpendicular", 2, 3),
    Sketcher.Constraint("Perpendicular", 3, 4),
    Sketcher.Constraint("Perpendicular", 4, 5),
    Sketcher.Constraint("Perpendicular", 5, 6),
    Sketcher.Constraint("Perpendicular", 6, 7),
    Sketcher.Constraint("Equal", 2, 4),
    Sketcher.Constraint("Equal", 1, 5),
    Sketcher.Constraint("Distance", 0, 1459.999999),
    Sketcher.Constraint("Distance", 1, 175.0),
    Sketcher.Constraint("Distance", 2, 610.0),
    Sketcher.Constraint("Distance", 3, 250.0),
    Sketcher.Constraint("DistanceY", -1, 1, 4, 2, 1941.712501),
    Sketcher.Constraint("DistanceY", -1, 1, 0, 2, 1667.244071),
    Sketcher.Constraint("DistanceX", -1, 1, 2, 2, 1597.24769),
])
sketch14.setExpression("Constraints[17]", "Params.sketch14_length")
sketch14.setExpression("Constraints[18]", "Params.sketch14_length2")
sketch14.setExpression("Constraints[19]", "Params.sketch14_length3")
sketch14.setExpression("Constraints[20]", "Params.sketch14_length4")
pad5 = body.newObject("PartDesign::Pad", "Pad004")
pad5.Profile = sketch14
pad5.setExpression("Length", "Params.pad5_length")

sketch15 = body.newObject("Sketcher::SketchObject", "Sketch014")
sketch15.Placement = App.Placement(Vector(424.631523, -71.787507, 0), App.Rotation(Vector(0.645808072, 0.763499793, 0), Vector(0, 0, -1), Vector(-0.763499793, 0.645808072, 0), "ZXY"))
sketch15.addGeometry([
    Part.LineSegment(Vector(2425.734764, 0, 0), Vector(1815.734764, -166, 0)),
    Part.LineSegment(Vector(1815.734764, -166, 0), Vector(2425.734764, -166, 0)),
    Part.LineSegment(Vector(2425.734764, -166, 0), Vector(2425.734764, 0, 0)),
], False)
sketch15.addConstraint([
    Sketcher.Constraint("Coincident", 0, 2, 1, 1),
    Sketcher.Constraint("Coincident", 1, 2, 2, 1),
    Sketcher.Constraint("Coincident", 2, 2, 0, 1),
    Sketcher.Constraint("Horizontal", 1),
    Sketcher.Constraint("Vertical", 2),
    Sketcher.Constraint("PointOnObject", 2, 2, -1),
    Sketcher.Constraint("DistanceX", 1, 1, 1, 2, 610.0),
    Sketcher.Constraint("DistanceY", 2, 1, 2, 2, 166.0),
    Sketcher.Constraint("DistanceX", -1, 1, 0, 2, 1815.734764),
])
sketch15.setExpression("Constraints[6]", "Params.sketch15_width")
sketch15.setExpression("Constraints[7]", "Params.sketch15_height")
pocket10 = body.newObject("PartDesign::Pocket", "Pocket009")
pocket10.Profile = sketch15
pocket10.setExpression("Length", "Params.pocket10_length")

sketch16 = body.newObject("Sketcher::SketchObject", "Sketch015")
sketch16.Placement = App.Placement(Vector(233.756575, 89.664511, 0), App.Rotation(Vector(-0.645808072, -0.763499793, 0), Vector(0, 0, -1), Vector(0.763499793, -0.645808072, 0), "ZXY"))
sketch16.addGeometry([
    Part.LineSegment(Vector(-1815.734764, -166, 0), Vector(-2425.734764, 0, 0)),
    Part.LineSegment(Vector(-2425.734764, 0, 0), Vector(-2425.734764, -166, 0)),
    Part.LineSegment(Vector(-2425.734764, -166, 0), Vector(-1815.734764, -166, 0)),
], False)
sketch16.addConstraint([
    Sketcher.Constraint("Coincident", 0, 2, 1, 1),
    Sketcher.Constraint("Coincident", 1, 2, 2, 1),
    Sketcher.Constraint("Coincident", 2, 2, 0, 1),
    Sketcher.Constraint("Vertical", 1),
    Sketcher.Constraint("Horizontal", 2),
    Sketcher.Constraint("PointOnObject", 0, 2, -1),
    Sketcher.Constraint("DistanceX", 2, 1, 2, 2, 610.0),
    Sketcher.Constraint("DistanceY", 1, 2, 1, 1, 166.0),
    Sketcher.Constraint("DistanceX", 0, 2, -1, 1, 2425.734764),
])
sketch16.setExpression("Constraints[6]", "Params.sketch16_width")
sketch16.setExpression("Constraints[7]", "Params.sketch16_height")
pocket11 = body.newObject("PartDesign::Pocket", "Pocket010")
pocket11.Profile = sketch16
pocket11.setExpression("Length", "Params.pocket11_length")

sketch17 = body.newObject("Sketcher::SketchObject", "Sketch016")
sketch17.AttachmentSupport = (doc.getObject("XY_Plane"), [""])
sketch17.MapMode = "FlatFace"
sketch17.addGeometry([
    Part.LineSegment(Vector(4462.639988, 5079.04405, 0), Vector(4462.639988, 0, 0)),
    Part.LineSegment(Vector(4462.639988, 0, 0), Vector(6996.313715, 0, 0)),
    Part.LineSegment(Vector(6996.313715, 0, 0), Vector(6996.313715, 5079.04405, 0)),
    Part.LineSegment(Vector(6996.313715, 5079.04405, 0), Vector(4462.639988, 5079.04405, 0)),
], False)
sketch17.addConstraint([
    Sketcher.Constraint("Coincident", 0, 2, 1, 1),
    Sketcher.Constraint("Coincident", 1, 2, 2, 1),
    Sketcher.Constraint("Coincident", 2, 2, 3, 1),
    Sketcher.Constraint("Coincident", 3, 2, 0, 1),
    Sketcher.Constraint("Vertical", 0),
    Sketcher.Constraint("Horizontal", 1),
    Sketcher.Constraint("Vertical", 2),
    Sketcher.Constraint("Horizontal", 3),
    Sketcher.Constraint("PointOnObject", 0, 2, -1),
    Sketcher.Constraint("DistanceY", 0, 2, 0, 1, 5079.04405),
    Sketcher.Constraint("DistanceX", 1, 1, 1, 2, 2533.673728),
    Sketcher.Constraint("DistanceX", -1, 1, 0, 2, 4462.639988),
])
pocket12 = body.newObject("PartDesign::Pocket", "Pocket011")
pocket12.Profile = sketch17
pocket12.setExpression("Length", "Params.pocket12_length")
pocket12.Reversed = True

sketch18 = body.newObject("Sketcher::SketchObject", "Sketch017")
sketch18.AttachmentSupport = (doc.getObject("XY_Plane"), [""])
sketch18.MapMode = "FlatFace"
sketch18.addGeometry([
    Part.LineSegment(Vector(0, 5079.04405, 0), Vector(0, 3782.424781, 0)),
    Part.LineSegment(Vector(0, 3782.424781, 0), Vector(6996.313715, 3782.424781, 0)),
    Part.LineSegment(Vector(6996.313715, 3782.424781, 0), Vector(6996.313715, 5079.04405, 0)),
    Part.LineSegment(Vector(6996.313715, 5079.04405, 0), Vector(0, 5079.04405, 0)),
], False)
sketch18.addConstraint([
    Sketcher.Constraint("Coincident", 0, 2, 1, 1),
    Sketcher.Constraint("Coincident", 1, 2, 2, 1),
    Sketcher.Constraint("Coincident", 2, 2, 3, 1),
    Sketcher.Constraint("Coincident", 3, 2, 0, 1),
    Sketcher.Constraint("Vertical", 0),
    Sketcher.Constraint("Horizontal", 1),
    Sketcher.Constraint("Vertical", 2),
    Sketcher.Constraint("Horizontal", 3),
    Sketcher.Constraint("PointOnObject", 0, 2, -2),
    Sketcher.Constraint("DistanceY", 0, 2, 0, 1, 1296.61927),
    Sketcher.Constraint("DistanceX", 1, 1, 1, 2, 6996.313715),
    Sketcher.Constraint("DistanceY", -1, 1, 0, 2, 3782.424781),
])
pocket13 = body.newObject("PartDesign::Pocket", "Pocket012")
pocket13.Profile = sketch18
pocket13.setExpression("Length", "Params.pocket13_length")

sketch19 = body.newObject("Sketcher::SketchObject", "Sketch018")
sketch19.AttachmentSupport = (doc.getObject("XY_Plane"), [""])
sketch19.MapMode = "FlatFace"
sketch19.addGeometry([
    Part.LineSegment(Vector(4544.140777, 3782.424781, 0), Vector(4544.140777, 0, 0)),
    Part.LineSegment(Vector(4544.140777, 0, 0), Vector(6996.313715, 0, 0)),
    Part.LineSegment(Vector(6996.313715, 0, 0), Vector(6996.313715, 3782.424781, 0)),
    Part.LineSegment(Vector(6996.313715, 3782.424781, 0), Vector(4544.140777, 3782.424781, 0)),
], False)
sketch19.addConstraint([
    Sketcher.Constraint("Coincident", 0, 2, 1, 1),
    Sketcher.Constraint("Coincident", 1, 2, 2, 1),
    Sketcher.Constraint("Coincident", 2, 2, 3, 1),
    Sketcher.Constraint("Coincident", 3, 2, 0, 1),
    Sketcher.Constraint("Vertical", 0),
    Sketcher.Constraint("Horizontal", 1),
    Sketcher.Constraint("Vertical", 2),
    Sketcher.Constraint("Horizontal", 3),
    Sketcher.Constraint("PointOnObject", 0, 2, -1),
    Sketcher.Constraint("DistanceY", 0, 2, 0, 1, 3782.424781),
    Sketcher.Constraint("DistanceX", 1, 1, 1, 2, 2452.172938),
    Sketcher.Constraint("DistanceX", -1, 1, 0, 2, 4544.140777),
])
pocket14 = body.newObject("PartDesign::Pocket", "Pocket013")
pocket14.Profile = sketch19
pocket14.setExpression("Length", "Params.pocket14_length")

doc.recompute()
